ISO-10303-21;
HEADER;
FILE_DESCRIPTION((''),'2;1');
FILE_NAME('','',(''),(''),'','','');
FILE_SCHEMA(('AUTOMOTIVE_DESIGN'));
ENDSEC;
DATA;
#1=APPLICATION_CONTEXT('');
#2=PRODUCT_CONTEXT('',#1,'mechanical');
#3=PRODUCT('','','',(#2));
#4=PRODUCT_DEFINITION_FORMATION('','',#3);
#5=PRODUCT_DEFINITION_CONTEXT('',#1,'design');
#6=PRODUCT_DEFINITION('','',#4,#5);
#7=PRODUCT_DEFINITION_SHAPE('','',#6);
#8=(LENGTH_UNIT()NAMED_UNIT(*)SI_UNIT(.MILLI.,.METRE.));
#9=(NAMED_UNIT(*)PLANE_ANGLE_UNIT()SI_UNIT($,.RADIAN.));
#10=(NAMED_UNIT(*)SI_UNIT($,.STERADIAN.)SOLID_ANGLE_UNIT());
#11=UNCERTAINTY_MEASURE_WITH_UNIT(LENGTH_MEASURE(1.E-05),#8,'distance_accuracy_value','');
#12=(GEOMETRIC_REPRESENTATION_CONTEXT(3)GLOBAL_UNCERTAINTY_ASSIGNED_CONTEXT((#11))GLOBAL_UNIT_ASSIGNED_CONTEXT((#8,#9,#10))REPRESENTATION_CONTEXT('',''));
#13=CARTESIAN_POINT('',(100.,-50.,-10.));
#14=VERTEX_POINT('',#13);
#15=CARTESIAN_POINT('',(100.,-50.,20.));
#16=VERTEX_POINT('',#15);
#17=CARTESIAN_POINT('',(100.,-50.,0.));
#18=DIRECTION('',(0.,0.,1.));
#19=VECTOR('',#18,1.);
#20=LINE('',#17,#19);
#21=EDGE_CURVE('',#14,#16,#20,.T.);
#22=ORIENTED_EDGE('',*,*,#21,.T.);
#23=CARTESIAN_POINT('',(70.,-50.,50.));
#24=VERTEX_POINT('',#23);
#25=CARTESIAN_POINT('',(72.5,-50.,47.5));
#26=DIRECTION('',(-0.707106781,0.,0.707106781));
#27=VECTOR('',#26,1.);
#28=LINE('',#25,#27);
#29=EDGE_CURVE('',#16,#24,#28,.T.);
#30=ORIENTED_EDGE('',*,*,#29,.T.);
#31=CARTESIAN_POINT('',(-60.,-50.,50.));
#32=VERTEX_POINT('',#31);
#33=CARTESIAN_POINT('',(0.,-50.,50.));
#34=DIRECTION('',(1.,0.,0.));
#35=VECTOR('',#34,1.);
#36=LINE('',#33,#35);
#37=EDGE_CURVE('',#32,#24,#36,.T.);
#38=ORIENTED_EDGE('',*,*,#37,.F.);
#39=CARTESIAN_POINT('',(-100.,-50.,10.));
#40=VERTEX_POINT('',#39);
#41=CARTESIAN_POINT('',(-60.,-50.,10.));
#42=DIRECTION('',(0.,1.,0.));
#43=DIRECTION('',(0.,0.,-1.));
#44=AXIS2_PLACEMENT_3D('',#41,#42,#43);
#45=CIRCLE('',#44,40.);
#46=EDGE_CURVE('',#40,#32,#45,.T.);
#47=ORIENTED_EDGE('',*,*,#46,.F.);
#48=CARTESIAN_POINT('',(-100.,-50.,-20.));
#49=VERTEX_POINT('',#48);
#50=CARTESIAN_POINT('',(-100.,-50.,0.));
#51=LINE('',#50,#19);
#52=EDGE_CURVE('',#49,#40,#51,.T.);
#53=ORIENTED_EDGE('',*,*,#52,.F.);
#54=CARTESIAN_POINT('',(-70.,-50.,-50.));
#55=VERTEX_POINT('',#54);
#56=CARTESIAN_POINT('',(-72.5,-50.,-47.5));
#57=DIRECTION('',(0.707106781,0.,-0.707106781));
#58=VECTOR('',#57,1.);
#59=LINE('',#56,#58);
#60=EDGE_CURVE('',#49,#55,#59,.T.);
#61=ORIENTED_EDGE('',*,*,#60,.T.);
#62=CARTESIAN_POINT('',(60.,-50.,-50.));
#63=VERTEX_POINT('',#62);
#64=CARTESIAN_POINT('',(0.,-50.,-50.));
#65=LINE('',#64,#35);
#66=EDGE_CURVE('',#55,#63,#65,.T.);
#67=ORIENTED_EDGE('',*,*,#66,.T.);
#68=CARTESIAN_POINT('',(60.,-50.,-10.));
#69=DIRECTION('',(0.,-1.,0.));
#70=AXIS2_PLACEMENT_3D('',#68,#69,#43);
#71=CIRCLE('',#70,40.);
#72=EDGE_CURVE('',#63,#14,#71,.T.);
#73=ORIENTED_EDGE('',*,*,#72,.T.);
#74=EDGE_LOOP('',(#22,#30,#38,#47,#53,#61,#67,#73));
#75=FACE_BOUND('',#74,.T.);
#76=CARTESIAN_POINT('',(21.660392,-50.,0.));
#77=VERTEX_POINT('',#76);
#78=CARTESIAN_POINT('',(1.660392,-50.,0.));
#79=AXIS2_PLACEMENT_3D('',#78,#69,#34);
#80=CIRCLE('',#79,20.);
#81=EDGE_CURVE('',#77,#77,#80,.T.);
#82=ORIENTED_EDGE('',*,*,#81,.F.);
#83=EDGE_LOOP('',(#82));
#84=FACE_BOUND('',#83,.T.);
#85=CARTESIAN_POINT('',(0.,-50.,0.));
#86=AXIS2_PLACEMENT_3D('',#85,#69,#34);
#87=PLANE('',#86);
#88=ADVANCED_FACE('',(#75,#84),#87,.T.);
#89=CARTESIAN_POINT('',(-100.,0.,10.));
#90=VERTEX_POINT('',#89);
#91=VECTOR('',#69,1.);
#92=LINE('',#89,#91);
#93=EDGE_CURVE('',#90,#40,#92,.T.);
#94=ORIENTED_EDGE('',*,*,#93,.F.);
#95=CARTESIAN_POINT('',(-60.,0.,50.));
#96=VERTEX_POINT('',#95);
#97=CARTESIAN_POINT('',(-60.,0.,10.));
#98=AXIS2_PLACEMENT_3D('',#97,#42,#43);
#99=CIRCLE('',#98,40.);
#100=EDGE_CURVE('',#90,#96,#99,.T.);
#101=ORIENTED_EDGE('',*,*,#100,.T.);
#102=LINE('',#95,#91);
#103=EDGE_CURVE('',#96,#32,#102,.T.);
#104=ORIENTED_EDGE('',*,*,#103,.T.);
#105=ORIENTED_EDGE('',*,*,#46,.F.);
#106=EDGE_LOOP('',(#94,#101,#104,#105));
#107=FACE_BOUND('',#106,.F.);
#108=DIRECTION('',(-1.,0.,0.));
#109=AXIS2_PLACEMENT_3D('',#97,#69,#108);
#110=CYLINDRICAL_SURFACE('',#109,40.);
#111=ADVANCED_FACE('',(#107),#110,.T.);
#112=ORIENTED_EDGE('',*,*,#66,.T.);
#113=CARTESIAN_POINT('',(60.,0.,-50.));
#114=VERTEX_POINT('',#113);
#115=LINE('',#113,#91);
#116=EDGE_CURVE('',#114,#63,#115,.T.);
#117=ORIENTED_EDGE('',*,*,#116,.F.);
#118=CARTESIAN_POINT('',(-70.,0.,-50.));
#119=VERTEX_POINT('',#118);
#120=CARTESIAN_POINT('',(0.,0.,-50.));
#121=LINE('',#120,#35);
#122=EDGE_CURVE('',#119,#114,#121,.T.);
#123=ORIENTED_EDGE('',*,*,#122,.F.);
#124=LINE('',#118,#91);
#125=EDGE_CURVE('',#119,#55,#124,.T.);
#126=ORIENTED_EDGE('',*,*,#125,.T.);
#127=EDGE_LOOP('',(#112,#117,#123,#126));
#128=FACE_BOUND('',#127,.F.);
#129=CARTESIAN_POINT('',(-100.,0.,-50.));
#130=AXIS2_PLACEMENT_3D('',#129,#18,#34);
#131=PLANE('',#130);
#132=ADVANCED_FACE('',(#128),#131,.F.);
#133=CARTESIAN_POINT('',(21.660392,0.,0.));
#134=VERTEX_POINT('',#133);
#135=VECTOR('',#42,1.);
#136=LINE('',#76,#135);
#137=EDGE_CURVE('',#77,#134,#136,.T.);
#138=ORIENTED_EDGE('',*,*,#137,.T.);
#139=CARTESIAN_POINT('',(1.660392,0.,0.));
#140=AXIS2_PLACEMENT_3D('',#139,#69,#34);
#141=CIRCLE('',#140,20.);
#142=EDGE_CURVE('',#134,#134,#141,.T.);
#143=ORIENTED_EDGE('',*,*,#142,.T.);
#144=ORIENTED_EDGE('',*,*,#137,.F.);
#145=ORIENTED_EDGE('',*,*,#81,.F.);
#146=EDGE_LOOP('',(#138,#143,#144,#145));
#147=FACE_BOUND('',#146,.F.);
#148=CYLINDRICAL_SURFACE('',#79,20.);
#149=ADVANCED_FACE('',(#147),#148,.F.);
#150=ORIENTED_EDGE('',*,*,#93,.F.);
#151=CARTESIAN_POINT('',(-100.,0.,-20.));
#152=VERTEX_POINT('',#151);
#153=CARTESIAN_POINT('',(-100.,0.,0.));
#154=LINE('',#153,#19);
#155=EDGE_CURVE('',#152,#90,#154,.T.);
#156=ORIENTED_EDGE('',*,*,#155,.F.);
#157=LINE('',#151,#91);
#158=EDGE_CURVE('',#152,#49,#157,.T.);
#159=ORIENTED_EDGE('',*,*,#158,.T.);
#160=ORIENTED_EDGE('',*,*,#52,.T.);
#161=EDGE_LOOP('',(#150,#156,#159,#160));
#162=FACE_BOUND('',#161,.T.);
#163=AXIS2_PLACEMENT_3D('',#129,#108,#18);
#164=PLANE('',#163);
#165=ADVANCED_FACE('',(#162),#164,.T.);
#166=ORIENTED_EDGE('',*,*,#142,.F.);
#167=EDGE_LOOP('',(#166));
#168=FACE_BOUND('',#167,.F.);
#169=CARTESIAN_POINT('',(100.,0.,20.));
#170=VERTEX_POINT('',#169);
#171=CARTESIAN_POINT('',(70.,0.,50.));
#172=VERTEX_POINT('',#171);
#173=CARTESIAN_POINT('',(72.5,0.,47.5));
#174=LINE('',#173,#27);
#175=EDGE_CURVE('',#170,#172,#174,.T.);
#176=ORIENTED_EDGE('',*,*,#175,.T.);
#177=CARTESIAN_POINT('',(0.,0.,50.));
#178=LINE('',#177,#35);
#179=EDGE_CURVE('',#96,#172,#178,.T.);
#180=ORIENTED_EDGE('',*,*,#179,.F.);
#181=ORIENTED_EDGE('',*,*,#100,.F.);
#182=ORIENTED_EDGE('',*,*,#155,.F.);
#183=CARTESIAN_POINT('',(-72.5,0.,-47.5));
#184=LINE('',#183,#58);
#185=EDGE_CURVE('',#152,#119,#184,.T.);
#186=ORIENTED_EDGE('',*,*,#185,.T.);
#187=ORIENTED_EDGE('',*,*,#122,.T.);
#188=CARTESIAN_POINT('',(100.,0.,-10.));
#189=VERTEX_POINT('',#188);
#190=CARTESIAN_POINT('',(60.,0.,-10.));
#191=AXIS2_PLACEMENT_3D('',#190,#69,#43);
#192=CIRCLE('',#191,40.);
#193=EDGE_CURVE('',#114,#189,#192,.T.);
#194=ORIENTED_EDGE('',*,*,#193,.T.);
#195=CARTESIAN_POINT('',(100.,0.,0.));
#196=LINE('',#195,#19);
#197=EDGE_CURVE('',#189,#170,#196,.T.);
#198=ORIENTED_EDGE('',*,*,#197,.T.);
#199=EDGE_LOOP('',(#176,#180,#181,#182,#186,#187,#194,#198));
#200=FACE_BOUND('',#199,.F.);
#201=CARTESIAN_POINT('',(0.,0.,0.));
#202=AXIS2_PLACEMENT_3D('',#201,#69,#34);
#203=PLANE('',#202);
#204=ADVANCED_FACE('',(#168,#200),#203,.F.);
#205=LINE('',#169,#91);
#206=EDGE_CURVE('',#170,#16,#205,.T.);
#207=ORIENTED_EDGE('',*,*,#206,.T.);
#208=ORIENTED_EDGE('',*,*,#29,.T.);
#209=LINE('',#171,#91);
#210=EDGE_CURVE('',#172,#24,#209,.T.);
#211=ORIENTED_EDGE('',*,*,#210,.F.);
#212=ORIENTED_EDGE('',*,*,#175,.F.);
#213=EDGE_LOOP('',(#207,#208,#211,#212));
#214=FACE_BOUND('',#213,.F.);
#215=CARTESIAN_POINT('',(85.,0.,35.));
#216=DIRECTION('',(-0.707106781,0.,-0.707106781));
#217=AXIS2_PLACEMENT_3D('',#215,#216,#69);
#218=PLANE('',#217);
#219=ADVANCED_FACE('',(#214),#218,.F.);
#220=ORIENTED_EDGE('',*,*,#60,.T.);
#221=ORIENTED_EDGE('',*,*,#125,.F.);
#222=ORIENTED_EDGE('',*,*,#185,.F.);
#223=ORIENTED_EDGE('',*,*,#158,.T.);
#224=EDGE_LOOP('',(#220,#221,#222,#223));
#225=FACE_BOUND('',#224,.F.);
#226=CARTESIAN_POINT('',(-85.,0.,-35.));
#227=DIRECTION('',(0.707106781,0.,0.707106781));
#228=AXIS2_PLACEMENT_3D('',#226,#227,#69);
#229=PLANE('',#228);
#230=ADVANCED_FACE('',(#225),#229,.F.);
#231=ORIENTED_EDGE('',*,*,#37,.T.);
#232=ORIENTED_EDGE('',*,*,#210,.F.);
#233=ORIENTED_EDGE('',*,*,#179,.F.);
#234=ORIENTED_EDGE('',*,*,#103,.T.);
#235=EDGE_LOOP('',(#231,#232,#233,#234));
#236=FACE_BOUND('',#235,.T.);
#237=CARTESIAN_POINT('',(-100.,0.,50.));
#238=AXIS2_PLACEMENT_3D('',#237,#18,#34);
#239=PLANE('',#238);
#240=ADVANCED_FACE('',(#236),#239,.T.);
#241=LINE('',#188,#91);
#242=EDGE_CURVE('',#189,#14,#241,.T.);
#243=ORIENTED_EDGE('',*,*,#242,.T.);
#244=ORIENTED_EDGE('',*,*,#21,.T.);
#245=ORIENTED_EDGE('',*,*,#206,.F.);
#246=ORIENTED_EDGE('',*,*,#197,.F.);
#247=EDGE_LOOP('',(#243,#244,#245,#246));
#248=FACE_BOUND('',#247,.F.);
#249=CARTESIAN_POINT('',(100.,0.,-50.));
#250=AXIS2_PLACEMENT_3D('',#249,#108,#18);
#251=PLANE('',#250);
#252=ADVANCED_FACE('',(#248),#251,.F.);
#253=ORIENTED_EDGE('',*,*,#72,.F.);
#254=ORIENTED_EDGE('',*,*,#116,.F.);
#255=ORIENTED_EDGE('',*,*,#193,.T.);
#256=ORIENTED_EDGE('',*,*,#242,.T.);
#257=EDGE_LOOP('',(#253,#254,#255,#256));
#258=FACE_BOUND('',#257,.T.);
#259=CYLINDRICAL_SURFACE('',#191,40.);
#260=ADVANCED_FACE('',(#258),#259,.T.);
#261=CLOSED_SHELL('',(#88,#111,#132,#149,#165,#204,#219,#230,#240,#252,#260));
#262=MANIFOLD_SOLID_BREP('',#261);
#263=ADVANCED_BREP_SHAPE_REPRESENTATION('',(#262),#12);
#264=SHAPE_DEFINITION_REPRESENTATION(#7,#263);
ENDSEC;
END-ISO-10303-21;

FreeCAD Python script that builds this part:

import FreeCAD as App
import Part
import Sketcher
from FreeCAD import Vector


def edges_at(feature, points):
    """Names of the edges that pass closest to the given points."""
    edges = feature.Shape.Edges
    near = lambda p: min(range(len(edges)), key=lambda i: edges[i].distToShape(Part.Vertex(*p))[0])
    return sorted({f"Edge{near(p) + 1}" for p in points})

doc = App.newDocument("Part")
params = doc.addObject("Spreadsheet::Sheet", "Params")
for row, (alias, value) in enumerate([
    ("sketch1_width", "200 mm"),
    ("sketch1_height", "100 mm"),
    ("pad1_length", "50 mm"),
    ("chamfer_size", "30 mm"),
    ("fillet_radius", "40 mm"),
    ("sketch2_diameter", "40 mm"),
], start=1):
    params.set(f"A{row}", alias)
    params.set(f"B{row}", "=" + value)
    params.setAlias(f"B{row}", alias)

body = doc.addObject("PartDesign::Body", "Body")

# Sketch on XZ plane
sketch1 = body.newObject("Sketcher::SketchObject", "Sketch")
sketch1.AttachmentSupport = (doc.getObject("XZ_Plane"), [""])
sketch1.MapMode = "FlatFace"
sketch1.addGeometry([
    Part.LineSegment(Vector(-100, 50, 0), Vector(-100, -50, 0)),
    Part.LineSegment(Vector(-100, -50, 0), Vector(100, -50, 0)),
    Part.LineSegment(Vector(100, -50, 0), Vector(100, 50, 0)),
    Part.LineSegment(Vector(100, 50, 0), Vector(-100, 50, 0)),
], False)
sketch1.addConstraint([
    Sketcher.Constraint("Coincident", 0, 2, 1, 1),
    Sketcher.Constraint("Coincident", 1, 2, 2, 1),
    Sketcher.Constraint("Coincident", 2, 2, 3, 1),
    Sketcher.Constraint("Coincident", 3, 2, 0, 1),
    Sketcher.Constraint("Vertical", 0),
    Sketcher.Constraint("Horizontal", 1),
    Sketcher.Constraint("Vertical", 2),
    Sketcher.Constraint("Horizontal", 3),
    Sketcher.Constraint("Symmetric", 0, 2, 2, 2, -1, 1),
    Sketcher.Constraint("DistanceX", 1, 1, 1, 2, 200.0),
    Sketcher.Constraint("DistanceY", 0, 2, 0, 1, 100.0),
])
sketch1.setExpression("Constraints[9]", "Params.sketch1_width")
sketch1.setExpression("Constraints[10]", "Params.sketch1_height")
pad1 = body.newObject("PartDesign::Pad", "Pad")
pad1.Profile = sketch1
pad1.setExpression("Length", "Params.pad1_length")
doc.recompute()

chamfer = body.newObject("PartDesign::Chamfer", "Chamfer")
chamfer.Base = (pad1, edges_at(pad1, [(-100, -25, -50), (100, -25, 50)]))
chamfer.setExpression("Size", "Params.chamfer_size")
doc.recompute()

fillet = body.newObject("PartDesign::Fillet", "Fillet")
fillet.Base = (chamfer, edges_at(chamfer, [(-100, -25, 50), (100, -25, -50)]))
fillet.setExpression("Radius", "Params.fillet_radius")

# Sketch on XZ plane
sketch2 = body.newObject("Sketcher::SketchObject", "Sketch001")
sketch2.AttachmentSupport = (doc.getObject("XZ_Plane"), [""])
sketch2.MapMode = "FlatFace"
sketch2.AttachmentOffset = App.Placement(Vector(0, 0, 50), App.Rotation())
sketch2.addGeometry(Part.Circle(Vector(2, 0, 0), Vector(0, 0, 1), 20), False)
sketch2.addConstraint([
    Sketcher.Constraint("PointOnObject", 0, 3, -1),
    Sketcher.Constraint("Diameter", 0, 40.0),
    Sketcher.Constraint("DistanceX", -1, 1, 0, 3, 1.660392),
])
sketch2.setExpression("Constraints[1]", "Params.sketch2_diameter")
pocket1 = body.newObject("PartDesign::Pocket", "Pocket")
pocket1.Profile = sketch2
pocket1.Type = "ThroughAll"

doc.recompute()
